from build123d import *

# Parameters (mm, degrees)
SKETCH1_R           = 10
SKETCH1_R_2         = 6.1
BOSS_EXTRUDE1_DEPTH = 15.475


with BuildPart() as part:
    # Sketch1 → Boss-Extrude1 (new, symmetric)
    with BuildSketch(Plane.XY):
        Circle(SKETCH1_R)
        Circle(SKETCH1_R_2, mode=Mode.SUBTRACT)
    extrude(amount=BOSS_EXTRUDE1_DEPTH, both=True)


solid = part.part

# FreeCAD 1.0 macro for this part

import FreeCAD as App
import Part
import Sketcher

doc = App.newDocument("Part")
body = doc.addObject("PartDesign::Body", "Body")

# Sketch on XY plane
sketch1 = body.newObject("Sketcher::SketchObject", "Sketch")
sketch1.AttachmentSupport = (doc.getObject("XY_Plane"), [""])
sketch1.MapMode = "FlatFace"
sketch1.addGeometry([
    Part.Circle(App.Vector(0, 0, 0), App.Vector(0, 0, 1), 10),
    Part.Circle(App.Vector(0, 0, 0), App.Vector(0, 0, 1), 6.1),
], False)
sketch1.addConstraint([
    Sketcher.Constraint("Coincident", 0, 3, -1, 1),
    Sketcher.Constraint("Coincident", 1, 3, -1, 1),
    Sketcher.Constraint("Diameter", 0, 20.0),
    Sketcher.Constraint("Diameter", 1, 12.2),
])
pad1 = body.newObject("PartDesign::Pad", "Pad")
pad1.Profile = sketch1
pad1.Length = 30.95
pad1.Midplane = True

doc.recompute()
